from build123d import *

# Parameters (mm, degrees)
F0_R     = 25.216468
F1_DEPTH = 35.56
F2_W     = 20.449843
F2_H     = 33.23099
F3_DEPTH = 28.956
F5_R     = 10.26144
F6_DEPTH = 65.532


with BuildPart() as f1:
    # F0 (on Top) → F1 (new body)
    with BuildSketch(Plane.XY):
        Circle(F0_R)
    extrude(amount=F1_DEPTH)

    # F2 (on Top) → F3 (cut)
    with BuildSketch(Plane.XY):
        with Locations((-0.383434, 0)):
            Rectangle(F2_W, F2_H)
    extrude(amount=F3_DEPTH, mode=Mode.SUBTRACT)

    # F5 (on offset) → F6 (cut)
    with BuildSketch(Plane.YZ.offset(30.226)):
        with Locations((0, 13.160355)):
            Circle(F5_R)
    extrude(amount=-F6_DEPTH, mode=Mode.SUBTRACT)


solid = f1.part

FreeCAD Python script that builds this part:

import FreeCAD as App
import Part
import Sketcher
Q = App.Units.Quantity

doc = App.newDocument("Part")
params = doc.addObject("Spreadsheet::Sheet", "Params")
for row, (alias, value) in enumerate([
    ("pad1_length", "1.4 in"),
    ("pocket1_length", "1.14 in"),
    ("pocket2_length", "2.58 in"),
], start=1):
    params.set(f"A{row}", alias)
    params.set(f"B{row}", "=" + value)
    params.setAlias(f"B{row}", alias)

body = doc.addObject("PartDesign::Body", "Body")

# Sketch on XY plane
sketch1 = body.newObject("Sketcher::SketchObject", "Sketch")
sketch1.AttachmentSupport = (doc.getObject("XY_Plane"), [""])
sketch1.MapMode = "FlatFace"
sketch1.addGeometry(Part.Circle(App.Vector(0, 0, 0), App.Vector(0, 0, 1), 25), False)
sketch1.addConstraint([
    Sketcher.Constraint("Coincident", 0, 3, -1, 1),
    Sketcher.Constraint("Diameter", 0, Q("50.432936 mm")),
])
pad1 = body.newObject("PartDesign::Pad", "Pad")
pad1.Profile = sketch1
pad1.setExpression("Length", "Params.pad1_length")

# Sketch on XY plane
sketch2 = body.newObject("Sketcher::SketchObject", "Sketch001")
sketch2.AttachmentSupport = (doc.getObject("XY_Plane"), [""])
sketch2.MapMode = "FlatFace"
sketch2.addGeometry([
    Part.LineSegment(App.Vector(-11, 17, 0), App.Vector(-11, -17, 0)),
    Part.LineSegment(App.Vector(-11, -17, 0), App.Vector(10, -17, 0)),
    Part.LineSegment(App.Vector(10, -17, 0), App.Vector(10, 17, 0)),
    Part.LineSegment(App.Vector(10, 17, 0), App.Vector(-11, 17, 0)),
], False)
sketch2.addConstraint([
    Sketcher.Constraint("Coincident", 0, 2, 1, 1),
    Sketcher.Constraint("Coincident", 1, 2, 2, 1),
    Sketcher.Constraint("Coincident", 2, 2, 3, 1),
    Sketcher.Constraint("Coincident", 3, 2, 0, 1),
    Sketcher.Constraint("Vertical", 0),
    Sketcher.Constraint("Horizontal", 1),
    Sketcher.Constraint("Vertical", 2),
    Sketcher.Constraint("Horizontal", 3),
    Sketcher.Constraint("DistanceY", 0, 2, 0, 1, Q("33.23099 mm")),
    Sketcher.Constraint("DistanceX", 1, 1, 1, 2, Q("20.449843 mm")),
    Sketcher.Constraint("DistanceX", 0, 2, -1, 1, Q("10.608356 mm")),
    Sketcher.Constraint("DistanceY", 0, 2, -1, 1, Q("16.615495 mm")),
])
pocket1 = body.newObject("PartDesign::Pocket", "Pocket")
pocket1.Profile = sketch2
pocket1.setExpression("Length", "Params.pocket1_length")
pocket1.Reversed = True

# Sketch on YZ plane
sketch3 = body.newObject("Sketcher::SketchObject", "Sketch002")
sketch3.AttachmentSupport = (doc.getObject("YZ_Plane"), [""])
sketch3.MapMode = "FlatFace"
sketch3.AttachmentOffset = App.Placement(App.Vector(0, 0, 1.19 * 25.4), App.Rotation())
sketch3.addGeometry(Part.Circle(App.Vector(0, 13, 0), App.Vector(0, 0, 1), 10), False)
sketch3.addConstraint([
    Sketcher.Constraint("PointOnObject", 0, 3, -2),
    Sketcher.Constraint("Diameter", 0, Q("20.52288 mm")),
    Sketcher.Constraint("DistanceY", -1, 1, 0, 3, Q("13.160355 mm")),
])
pocket2 = body.newObject("PartDesign::Pocket", "Pocket001")
pocket2.Profile = sketch3
pocket2.setExpression("Length", "Params.pocket2_length")

doc.recompute()
